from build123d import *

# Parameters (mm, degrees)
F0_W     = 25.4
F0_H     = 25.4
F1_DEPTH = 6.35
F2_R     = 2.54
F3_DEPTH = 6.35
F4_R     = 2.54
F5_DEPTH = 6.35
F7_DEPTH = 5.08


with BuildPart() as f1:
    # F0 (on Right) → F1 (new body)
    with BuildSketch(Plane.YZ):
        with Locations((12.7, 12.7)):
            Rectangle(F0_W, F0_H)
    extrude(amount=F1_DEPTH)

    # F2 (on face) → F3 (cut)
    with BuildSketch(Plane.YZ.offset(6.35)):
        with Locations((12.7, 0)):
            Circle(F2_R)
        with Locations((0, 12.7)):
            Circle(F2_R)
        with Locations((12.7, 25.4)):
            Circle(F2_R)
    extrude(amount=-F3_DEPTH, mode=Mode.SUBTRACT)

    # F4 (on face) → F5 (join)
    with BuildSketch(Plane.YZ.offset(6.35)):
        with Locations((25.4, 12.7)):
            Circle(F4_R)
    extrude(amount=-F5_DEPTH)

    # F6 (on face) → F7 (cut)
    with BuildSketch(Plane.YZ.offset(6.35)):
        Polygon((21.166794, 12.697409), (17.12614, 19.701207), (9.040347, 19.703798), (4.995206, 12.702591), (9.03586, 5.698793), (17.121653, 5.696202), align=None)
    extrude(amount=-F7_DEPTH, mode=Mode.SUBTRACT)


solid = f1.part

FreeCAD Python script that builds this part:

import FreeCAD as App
import Part
import Sketcher
Q = App.Units.Quantity

doc = App.newDocument("Part")
body = doc.addObject("PartDesign::Body", "Body")

# Sketch on YZ plane
sketch1 = body.newObject("Sketcher::SketchObject", "Sketch")
sketch1.AttachmentSupport = (doc.getObject("YZ_Plane"), [""])
sketch1.MapMode = "FlatFace"
sketch1.addGeometry([
    Part.LineSegment(App.Vector(0, 25, 0), App.Vector(0, 0, 0)),
    Part.LineSegment(App.Vector(0, 0, 0), App.Vector(25, 0, 0)),
    Part.LineSegment(App.Vector(25, 0, 0), App.Vector(25, 25, 0)),
    Part.LineSegment(App.Vector(25, 25, 0), App.Vector(0, 25, 0)),
], False)
sketch1.addConstraint([
    Sketcher.Constraint("Coincident", 0, 2, 1, 1),
    Sketcher.Constraint("Coincident", 1, 2, 2, 1),
    Sketcher.Constraint("Coincident", 2, 2, 3, 1),
    Sketcher.Constraint("Coincident", 3, 2, 0, 1),
    Sketcher.Constraint("Vertical", 0),
    Sketcher.Constraint("Horizontal", 1),
    Sketcher.Constraint("Vertical", 2),
    Sketcher.Constraint("Horizontal", 3),
    Sketcher.Constraint("Coincident", 0, 2, -1, 1),
    Sketcher.Constraint("Equal", 3, 0),
    Sketcher.Constraint("DistanceX", 1, 1, 1, 2, Q("1 in")),
])
pad1 = body.newObject("PartDesign::Pad", "Pad")
pad1.Profile = sketch1
pad1.Length = Q("0.25 in")

# Sketch on YZ plane
sketch2 = body.newObject("Sketcher::SketchObject", "Sketch001")
sketch2.AttachmentSupport = (doc.getObject("YZ_Plane"), [""])
sketch2.MapMode = "FlatFace"
sketch2.AttachmentOffset = App.Placement(App.Vector(0, 0, 0.25 * 25.4), App.Rotation())
sketch2.addGeometry([
    Part.Circle(App.Vector(12.7, 0, 0), App.Vector(0, 0, 1), 2.5),
    Part.Circle(App.Vector(0, 12.7, 0), App.Vector(0, 0, 1), 2.5),
    Part.Circle(App.Vector(12.7, 25.4, 0), App.Vector(0, 0, 1), 2.5),
], False)
sketch2.addConstraint([
    Sketcher.Constraint("Equal", 0, 1),
    Sketcher.Constraint("Equal", 1, 2),
    Sketcher.Constraint("PointOnObject", 0, 3, -1),
    Sketcher.Constraint("PointOnObject", 1, 3, -2),
    Sketcher.Constraint("Vertical", 0, 3, 2, 3),
    Sketcher.Constraint("Diameter", 0, Q("0.2 in")),
    Sketcher.Constraint("DistanceY", -1, 1, 2, 3, Q("1 in")),
    Sketcher.Constraint("DistanceX", -1, 1, 0, 3, Q("0.5 in")),
    Sketcher.Constraint("DistanceY", -1, 1, 1, 3, Q("0.5 in")),
])
pocket1 = body.newObject("PartDesign::Pocket", "Pocket")
pocket1.Profile = sketch2
pocket1.Length = Q("0.25 in")

# Sketch on YZ plane
sketch3 = body.newObject("Sketcher::SketchObject", "Sketch002")
sketch3.AttachmentSupport = (doc.getObject("YZ_Plane"), [""])
sketch3.MapMode = "FlatFace"
sketch3.AttachmentOffset = App.Placement(App.Vector(0, 0, 0.25 * 25.4), App.Rotation())
sketch3.addGeometry(Part.Circle(App.Vector(25.4, 12.7, 0), App.Vector(0, 0, 1), 2.5), False)
sketch3.addConstraint([
    Sketcher.Constraint("Diameter", 0, Q("0.2 in")),
    Sketcher.Constraint("DistanceX", -1, 1, 0, 3, Q("1 in")),
    Sketcher.Constraint("DistanceY", -1, 1, 0, 3, Q("0.5 in")),
])
pad2 = body.newObject("PartDesign::Pad", "Pad001")
pad2.Profile = sketch3
pad2.Length = Q("0.25 in")
pad2.Reversed = True

# Sketch on YZ plane
sketch4 = body.newObject("Sketcher::SketchObject", "Sketch003")
sketch4.AttachmentSupport = (doc.getObject("YZ_Plane"), [""])
sketch4.MapMode = "FlatFace"
sketch4.AttachmentOffset = App.Placement(App.Vector(0, 0, 0.25 * 25.4), App.Rotation())
sketch4.addGeometry([
    Part.LineSegment(App.Vector(21, 13, 0), App.Vector(17, 20, 0)),  # 0
    Part.LineSegment(App.Vector(17, 20, 0), App.Vector(9, 20, 0)),  # 1
    Part.LineSegment(App.Vector(9, 20, 0), App.Vector(5, 13, 0)),  # 2
    Part.LineSegment(App.Vector(5, 13, 0), App.Vector(9, 6, 0)),  # 3
    Part.LineSegment(App.Vector(9, 6, 0), App.Vector(17, 6, 0)),  # 4
    Part.LineSegment(App.Vector(17, 6, 0), App.Vector(21, 13, 0)),  # 5
], False)
sketch4.addConstraint([
    Sketcher.Constraint("Coincident", 0, 2, 1, 1),
    Sketcher.Constraint("Coincident", 1, 2, 2, 1),
    Sketcher.Constraint("Coincident", 2, 2, 3, 1),
    Sketcher.Constraint("Coincident", 3, 2, 4, 1),
    Sketcher.Constraint("Coincident", 4, 2, 5, 1),
    Sketcher.Constraint("Coincident", 5, 2, 0, 1),
    Sketcher.Constraint("Parallel", 0, 3),
    Sketcher.Constraint("Parallel", 1, 4),
    Sketcher.Constraint("Parallel", 2, 5),
    Sketcher.Constraint("Equal", 0, 1),
    Sketcher.Constraint("Equal", 1, 2),
    Sketcher.Constraint("Equal", 2, 3),
    Sketcher.Constraint("DistanceX", -1, 1, 0, 2, Q("17.12614 mm")),
    Sketcher.Constraint("DistanceY", -1, 1, 2, 2, Q("12.702591 mm")),
    Sketcher.Constraint("DistanceX", -1, 1, 3, 2, Q("9.03586 mm")),
    Sketcher.Constraint("DistanceY", -1, 1, 5, 2, Q("12.697409 mm")),
    Sketcher.Constraint("DistanceY", 0, 2, 1, 2, Q("0.002591 mm")),
    Sketcher.Constraint("DistanceX", 2, 2, 1, 2, Q("4.045141 mm")),
])
pocket2 = body.newObject("PartDesign::Pocket", "Pocket001")
pocket2.Profile = sketch4
pocket2.Length = Q("0.2 in")

doc.recompute()
